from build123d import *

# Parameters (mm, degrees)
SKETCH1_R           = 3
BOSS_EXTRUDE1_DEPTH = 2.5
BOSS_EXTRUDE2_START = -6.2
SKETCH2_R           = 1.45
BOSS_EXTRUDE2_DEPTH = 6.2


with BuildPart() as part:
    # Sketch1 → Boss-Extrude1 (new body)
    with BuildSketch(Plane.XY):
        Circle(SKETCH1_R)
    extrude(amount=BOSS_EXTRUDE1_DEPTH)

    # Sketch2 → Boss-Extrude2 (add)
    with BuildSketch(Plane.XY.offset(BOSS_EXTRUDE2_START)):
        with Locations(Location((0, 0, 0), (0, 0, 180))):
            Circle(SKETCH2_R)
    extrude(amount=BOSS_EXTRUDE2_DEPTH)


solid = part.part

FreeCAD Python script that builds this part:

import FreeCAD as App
import Part
import Sketcher
from FreeCAD import Vector

doc = App.newDocument("Part")
params = doc.addObject("Spreadsheet::Sheet", "Params")
for row, (alias, value) in enumerate([
    ("sketch1_diameter", "6 mm"),
    ("pad1_length", "2.5 mm"),
    ("sketch2_diameter", "2.9 mm"),
    ("pad2_length", "6.2 mm"),
], start=1):
    params.set(f"A{row}", alias)
    params.set(f"B{row}", "=" + value)
    params.setAlias(f"B{row}", alias)

body = doc.addObject("PartDesign::Body", "Body")

# Sketch on XY plane
sketch1 = body.newObject("Sketcher::SketchObject", "Sketch")
sketch1.AttachmentSupport = (doc.getObject("XY_Plane"), [""])
sketch1.MapMode = "FlatFace"
sketch1.addGeometry(Part.Circle(Vector(0, 0, 0), Vector(0, 0, 1), 3), False)
sketch1.addConstraint([
    Sketcher.Constraint("Coincident", 0, 3, -1, 1),
    Sketcher.Constraint("Diameter", 0, 6.0),
])
sketch1.setExpression("Constraints[1]", "Params.sketch1_diameter")
pad1 = body.newObject("PartDesign::Pad", "Pad")
pad1.Profile = sketch1
pad1.setExpression("Length", "Params.pad1_length")

# Sketch on XY plane
sketch2 = body.newObject("Sketcher::SketchObject", "Sketch001")
sketch2.AttachmentSupport = (doc.getObject("XY_Plane"), [""])
sketch2.MapMode = "FlatFace"
sketch2.AttachmentOffset = App.Placement(Vector(0, 0, -6.2), App.Rotation())
sketch2.addGeometry(Part.Circle(Vector(0, 0, 0), Vector(0, 0, 1), 1.4), False)
sketch2.addConstraint([
    Sketcher.Constraint("Coincident", 0, 3, -1, 1),
    Sketcher.Constraint("Diameter", 0, 2.9),
])
sketch2.setExpression("Constraints[1]", "Params.sketch2_diameter")
pad2 = body.newObject("PartDesign::Pad", "Pad001")
pad2.Profile = sketch2
pad2.setExpression("Length", "Params.pad2_length")

doc.recompute()
